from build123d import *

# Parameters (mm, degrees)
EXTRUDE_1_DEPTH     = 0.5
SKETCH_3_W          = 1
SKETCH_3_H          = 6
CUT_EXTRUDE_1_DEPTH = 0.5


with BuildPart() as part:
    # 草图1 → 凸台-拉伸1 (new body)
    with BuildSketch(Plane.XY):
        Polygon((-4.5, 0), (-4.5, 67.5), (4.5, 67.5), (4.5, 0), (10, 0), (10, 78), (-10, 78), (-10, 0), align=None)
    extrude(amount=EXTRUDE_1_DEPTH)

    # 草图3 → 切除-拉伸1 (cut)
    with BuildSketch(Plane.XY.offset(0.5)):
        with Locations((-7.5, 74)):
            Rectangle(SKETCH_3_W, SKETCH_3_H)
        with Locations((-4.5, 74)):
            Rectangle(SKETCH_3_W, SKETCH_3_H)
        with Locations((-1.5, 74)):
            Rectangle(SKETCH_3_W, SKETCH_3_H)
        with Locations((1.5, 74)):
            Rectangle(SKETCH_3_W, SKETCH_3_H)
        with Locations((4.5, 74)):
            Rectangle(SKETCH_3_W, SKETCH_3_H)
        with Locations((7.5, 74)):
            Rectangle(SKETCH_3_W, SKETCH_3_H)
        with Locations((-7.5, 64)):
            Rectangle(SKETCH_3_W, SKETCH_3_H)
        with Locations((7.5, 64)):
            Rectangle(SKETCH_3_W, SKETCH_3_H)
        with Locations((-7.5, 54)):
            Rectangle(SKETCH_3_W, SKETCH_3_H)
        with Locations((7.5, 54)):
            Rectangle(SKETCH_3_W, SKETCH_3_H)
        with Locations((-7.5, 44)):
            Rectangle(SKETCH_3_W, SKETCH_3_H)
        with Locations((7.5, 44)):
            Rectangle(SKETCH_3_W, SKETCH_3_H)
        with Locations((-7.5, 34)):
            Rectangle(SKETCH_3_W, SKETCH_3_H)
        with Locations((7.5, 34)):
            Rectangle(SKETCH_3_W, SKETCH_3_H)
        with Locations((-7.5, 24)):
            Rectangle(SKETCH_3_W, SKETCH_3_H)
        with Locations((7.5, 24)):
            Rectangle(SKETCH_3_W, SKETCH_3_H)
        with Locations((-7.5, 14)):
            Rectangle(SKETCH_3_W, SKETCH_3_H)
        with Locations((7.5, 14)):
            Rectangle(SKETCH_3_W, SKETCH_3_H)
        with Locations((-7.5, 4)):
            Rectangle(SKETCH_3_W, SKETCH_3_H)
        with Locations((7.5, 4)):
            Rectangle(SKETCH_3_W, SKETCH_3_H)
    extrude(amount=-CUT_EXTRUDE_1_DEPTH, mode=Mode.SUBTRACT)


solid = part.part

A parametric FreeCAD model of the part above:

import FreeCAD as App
import Part
import Sketcher
from FreeCAD import Vector
Q = App.Units.Quantity

doc = App.newDocument("Part")
body = doc.addObject("PartDesign::Body", "Body")

# Sketch on XY plane
sketch1 = body.newObject("Sketcher::SketchObject", "Sketch")
sketch1.AttachmentSupport = (doc.getObject("XY_Plane"), [""])
sketch1.MapMode = "FlatFace"
sketch1.addGeometry(Part.LineSegment(Vector(-4, 0, 0), Vector(-4, 68, 0)), False)
sketch1.addGeometry(Part.LineSegment(Vector(-4, 68, 0), Vector(4, 68, 0)), False)
sketch1.addGeometry(Part.LineSegment(Vector(4, 68, 0), Vector(4, 0, 0)), False)
sketch1.addGeometry(Part.LineSegment(Vector(4, 0, 0), Vector(10, 0, 0)), False)
sketch1.addGeometry(Part.LineSegment(Vector(10, 0, 0), Vector(10, 78, 0)), False)
sketch1.addGeometry(Part.LineSegment(Vector(10, 78, 0), Vector(-10, 78, 0)), False)
sketch1.addGeometry(Part.LineSegment(Vector(-10, 78, 0), Vector(-10, 0, 0)), False)
sketch1.addGeometry(Part.LineSegment(Vector(-10, 0, 0), Vector(-4, 0, 0)), False)
sketch1.addConstraint(Sketcher.Constraint("Coincident", 0, 2, 1, 1))
sketch1.addConstraint(Sketcher.Constraint("Coincident", 1, 2, 2, 1))
sketch1.addConstraint(Sketcher.Constraint("Coincident", 2, 2, 3, 1))
sketch1.addConstraint(Sketcher.Constraint("Coincident", 3, 2, 4, 1))
sketch1.addConstraint(Sketcher.Constraint("Coincident", 4, 2, 5, 1))
sketch1.addConstraint(Sketcher.Constraint("Coincident", 5, 2, 6, 1))
sketch1.addConstraint(Sketcher.Constraint("Coincident", 6, 2, 7, 1))
sketch1.addConstraint(Sketcher.Constraint("Coincident", 7, 2, 0, 1))
sketch1.addConstraint(Sketcher.Constraint("Vertical", 0))
sketch1.addConstraint(Sketcher.Constraint("Horizontal", 1))
sketch1.addConstraint(Sketcher.Constraint("Vertical", 2))
sketch1.addConstraint(Sketcher.Constraint("Horizontal", 3))
sketch1.addConstraint(Sketcher.Constraint("Vertical", 4))
sketch1.addConstraint(Sketcher.Constraint("Horizontal", 5))
sketch1.addConstraint(Sketcher.Constraint("Vertical", 6))
sketch1.addConstraint(Sketcher.Constraint("Horizontal", 7))
sketch1.addConstraint(Sketcher.Constraint("Symmetric", 3, 2, 6, 2, -1, 1))
sketch1.addConstraint(Sketcher.Constraint("Symmetric", 2, 2, 7, 2, -2))
sketch1.addConstraint(Sketcher.Constraint("DistanceX", 1, 1, 1, 2, Q("9 mm")))
sketch1.addConstraint(Sketcher.Constraint("DistanceX", 5, 2, 5, 1, Q("20 mm")))
sketch1.addConstraint(Sketcher.Constraint("DistanceY", 4, 1, 4, 2, Q("78 mm")))
sketch1.addConstraint(Sketcher.Constraint("DistanceY", 0, 1, 0, 2, Q("67.5 mm")))
pad1 = body.newObject("PartDesign::Pad", "Pad")
pad1.Profile = sketch1
pad1.Length = 0.5

# Sketch on XY plane
sketch2 = body.newObject("Sketcher::SketchObject", "Sketch001")
sketch2.AttachmentSupport = (doc.getObject("XY_Plane"), [""])
sketch2.MapMode = "FlatFace"
sketch2.AttachmentOffset = App.Placement(Vector(0, 0, 0.5), App.Rotation())
sketch2.addGeometry(Part.LineSegment(Vector(-8, 77, 0), Vector(-8, 71, 0)), False)
sketch2.addGeometry(Part.LineSegment(Vector(-8, 71, 0), Vector(-7, 71, 0)), False)
sketch2.addGeometry(Part.LineSegment(Vector(-7, 71, 0), Vector(-7, 77, 0)), False)
sketch2.addGeometry(Part.LineSegment(Vector(-7, 77, 0), Vector(-8, 77, 0)), False)
sketch2.addGeometry(Part.LineSegment(Vector(-5, 77, 0), Vector(-5, 71, 0)), False)
sketch2.addGeometry(Part.LineSegment(Vector(-5, 71, 0), Vector(-4, 71, 0)), False)
sketch2.addGeometry(Part.LineSegment(Vector(-4, 71, 0), Vector(-4, 77, 0)), False)
sketch2.addGeometry(Part.LineSegment(Vector(-4, 77, 0), Vector(-5, 77, 0)), False)
sketch2.addGeometry(Part.LineSegment(Vector(-2, 77, 0), Vector(-2, 71, 0)), False)
sketch2.addGeometry(Part.LineSegment(Vector(-2, 71, 0), Vector(-1, 71, 0)), False)
sketch2.addGeometry(Part.LineSegment(Vector(-1, 71, 0), Vector(-1, 77, 0)), False)
sketch2.addGeometry(Part.LineSegment(Vector(-1, 77, 0), Vector(-2, 77, 0)), False)
sketch2.addGeometry(Part.LineSegment(Vector(1, 77, 0), Vector(1, 71, 0)), False)
sketch2.addGeometry(Part.LineSegment(Vector(1, 71, 0), Vector(2, 71, 0)), False)
sketch2.addGeometry(Part.LineSegment(Vector(2, 71, 0), Vector(2, 77, 0)), False)
sketch2.addGeometry(Part.LineSegment(Vector(2, 77, 0), Vector(1, 77, 0)), False)
sketch2.addGeometry(Part.LineSegment(Vector(4, 77, 0), Vector(4, 71, 0)), False)
sketch2.addGeometry(Part.LineSegment(Vector(4, 71, 0), Vector(5, 71, 0)), False)
sketch2.addGeometry(Part.LineSegment(Vector(5, 71, 0), Vector(5, 77, 0)), False)
sketch2.addGeometry(Part.LineSegment(Vector(5, 77, 0), Vector(4, 77, 0)), False)
sketch2.addGeometry(Part.LineSegment(Vector(7, 77, 0), Vector(7, 71, 0)), False)
sketch2.addGeometry(Part.LineSegment(Vector(7, 71, 0), Vector(8, 71, 0)), False)
sketch2.addGeometry(Part.LineSegment(Vector(8, 71, 0), Vector(8, 77, 0)), False)
sketch2.addGeometry(Part.LineSegment(Vector(8, 77, 0), Vector(7, 77, 0)), False)
sketch2.addGeometry(Part.LineSegment(Vector(-8, 67, 0), Vector(-8, 61, 0)), False)
sketch2.addGeometry(Part.LineSegment(Vector(-8, 61, 0), Vector(-7, 61, 0)), False)
sketch2.addGeometry(Part.LineSegment(Vector(-7, 61, 0), Vector(-7, 67, 0)), False)
sketch2.addGeometry(Part.LineSegment(Vector(-7, 67, 0), Vector(-8, 67, 0)), False)
sketch2.addGeometry(Part.LineSegment(Vector(7, 67, 0), Vector(7, 61, 0)), False)
sketch2.addGeometry(Part.LineSegment(Vector(7, 61, 0), Vector(8, 61, 0)), False)
sketch2.addGeometry(Part.LineSegment(Vector(8, 61, 0), Vector(8, 67, 0)), False)
sketch2.addGeometry(Part.LineSegment(Vector(8, 67, 0), Vector(7, 67, 0)), False)
sketch2.addGeometry(Part.LineSegment(Vector(-8, 57, 0), Vector(-8, 51, 0)), False)
sketch2.addGeometry(Part.LineSegment(Vector(-8, 51, 0), Vector(-7, 51, 0)), False)
sketch2.addGeometry(Part.LineSegment(Vector(-7, 51, 0), Vector(-7, 57, 0)), False)
sketch2.addGeometry(Part.LineSegment(Vector(-7, 57, 0), Vector(-8, 57, 0)), False)
sketch2.addGeometry(Part.LineSegment(Vector(7, 57, 0), Vector(7, 51, 0)), False)
sketch2.addGeometry(Part.LineSegment(Vector(7, 51, 0), Vector(8, 51, 0)), False)
sketch2.addGeometry(Part.LineSegment(Vector(8, 51, 0), Vector(8, 57, 0)), False)
sketch2.addGeometry(Part.LineSegment(Vector(8, 57, 0), Vector(7, 57, 0)), False)
sketch2.addGeometry(Part.LineSegment(Vector(-8, 47, 0), Vector(-8, 41, 0)), False)
sketch2.addGeometry(Part.LineSegment(Vector(-8, 41, 0), Vector(-7, 41, 0)), False)
sketch2.addGeometry(Part.LineSegment(Vector(-7, 41, 0), Vector(-7, 47, 0)), False)
sketch2.addGeometry(Part.LineSegment(Vector(-7, 47, 0), Vector(-8, 47, 0)), False)
sketch2.addGeometry(Part.LineSegment(Vector(7, 47, 0), Vector(7, 41, 0)), False)
sketch2.addGeometry(Part.LineSegment(Vector(7, 41, 0), Vector(8, 41, 0)), False)
sketch2.addGeometry(Part.LineSegment(Vector(8, 41, 0), Vector(8, 47, 0)), False)
sketch2.addGeometry(Part.LineSegment(Vector(8, 47, 0), Vector(7, 47, 0)), False)
sketch2.addGeometry(Part.LineSegment(Vector(-8, 37, 0), Vector(-8, 31, 0)), False)
sketch2.addGeometry(Part.LineSegment(Vector(-8, 31, 0), Vector(-7, 31, 0)), False)
sketch2.addGeometry(Part.LineSegment(Vector(-7, 31, 0), Vector(-7, 37, 0)), False)
sketch2.addGeometry(Part.LineSegment(Vector(-7, 37, 0), Vector(-8, 37, 0)), False)
sketch2.addGeometry(Part.LineSegment(Vector(7, 37, 0), Vector(7, 31, 0)), False)
sketch2.addGeometry(Part.LineSegment(Vector(7, 31, 0), Vector(8, 31, 0)), False)
sketch2.addGeometry(Part.LineSegment(Vector(8, 31, 0), Vector(8, 37, 0)), False)
sketch2.addGeometry(Part.LineSegment(Vector(8, 37, 0), Vector(7, 37, 0)), False)
sketch2.addGeometry(Part.LineSegment(Vector(-8, 27, 0), Vector(-8, 21, 0)), False)
sketch2.addGeometry(Part.LineSegment(Vector(-8, 21, 0), Vector(-7, 21, 0)), False)
sketch2.addGeometry(Part.LineSegment(Vector(-7, 21, 0), Vector(-7, 27, 0)), False)
sketch2.addGeometry(Part.LineSegment(Vector(-7, 27, 0), Vector(-8, 27, 0)), False)
sketch2.addGeometry(Part.LineSegment(Vector(7, 27, 0), Vector(7, 21, 0)), False)
sketch2.addGeometry(Part.LineSegment(Vector(7, 21, 0), Vector(8, 21, 0)), False)
sketch2.addGeometry(Part.LineSegment(Vector(8, 21, 0), Vector(8, 27, 0)), False)
sketch2.addGeometry(Part.LineSegment(Vector(8, 27, 0), Vector(7, 27, 0)), False)
sketch2.addGeometry(Part.LineSegment(Vector(-8, 17, 0), Vector(-8, 11, 0)), False)
sketch2.addGeometry(Part.LineSegment(Vector(-8, 11, 0), Vector(-7, 11, 0)), False)
sketch2.addGeometry(Part.LineSegment(Vector(-7, 11, 0), Vector(-7, 17, 0)), False)
sketch2.addGeometry(Part.LineSegment(Vector(-7, 17, 0), Vector(-8, 17, 0)), False)
sketch2.addGeometry(Part.LineSegment(Vector(7, 17, 0), Vector(7, 11, 0)), False)
sketch2.addGeometry(Part.LineSegment(Vector(7, 11, 0), Vector(8, 11, 0)), False)
sketch2.addGeometry(Part.LineSegment(Vector(8, 11, 0), Vector(8, 17, 0)), False)
sketch2.addGeometry(Part.LineSegment(Vector(8, 17, 0), Vector(7, 17, 0)), False)
sketch2.addGeometry(Part.LineSegment(Vector(-8, 7, 0), Vector(-8, 1, 0)), False)
sketch2.addGeometry(Part.LineSegment(Vector(-8, 1, 0), Vector(-7, 1, 0)), False)
sketch2.addGeometry(Part.LineSegment(Vector(-7, 1, 0), Vector(-7, 7, 0)), False)
sketch2.addGeometry(Part.LineSegment(Vector(-7, 7, 0), Vector(-8, 7, 0)), False)
sketch2.addGeometry(Part.LineSegment(Vector(7, 7, 0), Vector(7, 1, 0)), False)
sketch2.addGeometry(Part.LineSegment(Vector(7, 1, 0), Vector(8, 1, 0)), False)
sketch2.addGeometry(Part.LineSegment(Vector(8, 1, 0), Vector(8, 7, 0)), False)
sketch2.addGeometry(Part.LineSegment(Vector(8, 7, 0), Vector(7, 7, 0)), False)
sketch2.addConstraint(Sketcher.Constraint("Coincident", 0, 2, 1, 1))
sketch2.addConstraint(Sketcher.Constraint("Coincident", 1, 2, 2, 1))
sketch2.addConstraint(Sketcher.Constraint("Coincident", 2, 2, 3, 1))
sketch2.addConstraint(Sketcher.Constraint("Coincident", 3, 2, 0, 1))
sketch2.addConstraint(Sketcher.Constraint("Coincident", 4, 2, 5, 1))
sketch2.addConstraint(Sketcher.Constraint("Coincident", 5, 2, 6, 1))
sketch2.addConstraint(Sketcher.Constraint("Coincident", 6, 2, 7, 1))
sketch2.addConstraint(Sketcher.Constraint("Coincident", 7, 2, 4, 1))
sketch2.addConstraint(Sketcher.Constraint("Coincident", 8, 2, 9, 1))
sketch2.addConstraint(Sketcher.Constraint("Coincident", 9, 2, 10, 1))
sketch2.addConstraint(Sketcher.Constraint("Coincident", 10, 2, 11, 1))
sketch2.addConstraint(Sketcher.Constraint("Coincident", 11, 2, 8, 1))
sketch2.addConstraint(Sketcher.Constraint("Coincident", 12, 2, 13, 1))
sketch2.addConstraint(Sketcher.Constraint("Coincident", 13, 2, 14, 1))
sketch2.addConstraint(Sketcher.Constraint("Coincident", 14, 2, 15, 1))
sketch2.addConstraint(Sketcher.Constraint("Coincident", 15, 2, 12, 1))
sketch2.addConstraint(Sketcher.Constraint("Coincident", 16, 2, 17, 1))
sketch2.addConstraint(Sketcher.Constraint("Coincident", 17, 2, 18, 1))
sketch2.addConstraint(Sketcher.Constraint("Coincident", 18, 2, 19, 1))
sketch2.addConstraint(Sketcher.Constraint("Coincident", 19, 2, 16, 1))
sketch2.addConstraint(Sketcher.Constraint("Coincident", 20, 2, 21, 1))
sketch2.addConstraint(Sketcher.Constraint("Coincident", 21, 2, 22, 1))
sketch2.addConstraint(Sketcher.Constraint("Coincident", 22, 2, 23, 1))
sketch2.addConstraint(Sketcher.Constraint("Coincident", 23, 2, 20, 1))
sketch2.addConstraint(Sketcher.Constraint("Coincident", 24, 2, 25, 1))
sketch2.addConstraint(Sketcher.Constraint("Coincident", 25, 2, 26, 1))
sketch2.addConstraint(Sketcher.Constraint("Coincident", 26, 2, 27, 1))
sketch2.addConstraint(Sketcher.Constraint("Coincident", 27, 2, 24, 1))
sketch2.addConstraint(Sketcher.Constraint("Coincident", 28, 2, 29, 1))
sketch2.addConstraint(Sketcher.Constraint("Coincident", 29, 2, 30, 1))
sketch2.addConstraint(Sketcher.Constraint("Coincident", 30, 2, 31, 1))
sketch2.addConstraint(Sketcher.Constraint("Coincident", 31, 2, 28, 1))
sketch2.addConstraint(Sketcher.Constraint("Coincident", 32, 2, 33, 1))
sketch2.addConstraint(Sketcher.Constraint("Coincident", 33, 2, 34, 1))
sketch2.addConstraint(Sketcher.Constraint("Coincident", 34, 2, 35, 1))
sketch2.addConstraint(Sketcher.Constraint("Coincident", 35, 2, 32, 1))
sketch2.addConstraint(Sketcher.Constraint("Coincident", 36, 2, 37, 1))
sketch2.addConstraint(Sketcher.Constraint("Coincident", 37, 2, 38, 1))
sketch2.addConstraint(Sketcher.Constraint("Coincident", 38, 2, 39, 1))
sketch2.addConstraint(Sketcher.Constraint("Coincident", 39, 2, 36, 1))
sketch2.addConstraint(Sketcher.Constraint("Coincident", 40, 2, 41, 1))
sketch2.addConstraint(Sketcher.Constraint("Coincident", 41, 2, 42, 1))
sketch2.addConstraint(Sketcher.Constraint("Coincident", 42, 2, 43, 1))
sketch2.addConstraint(Sketcher.Constraint("Coincident", 43, 2, 40, 1))
sketch2.addConstraint(Sketcher.Constraint("Coincident", 44, 2, 45, 1))
sketch2.addConstraint(Sketcher.Constraint("Coincident", 45, 2, 46, 1))
sketch2.addConstraint(Sketcher.Constraint("Coincident", 46, 2, 47, 1))
sketch2.addConstraint(Sketcher.Constraint("Coincident", 47, 2, 44, 1))
sketch2.addConstraint(Sketcher.Constraint("Coincident", 48, 2, 49, 1))
sketch2.addConstraint(Sketcher.Constraint("Coincident", 49, 2, 50, 1))
sketch2.addConstraint(Sketcher.Constraint("Coincident", 50, 2, 51, 1))
sketch2.addConstraint(Sketcher.Constraint("Coincident", 51, 2, 48, 1))
sketch2.addConstraint(Sketcher.Constraint("Coincident", 52, 2, 53, 1))
sketch2.addConstraint(Sketcher.Constraint("Coincident", 53, 2, 54, 1))
sketch2.addConstraint(Sketcher.Constraint("Coincident", 54, 2, 55, 1))
sketch2.addConstraint(Sketcher.Constraint("Coincident", 55, 2, 52, 1))
sketch2.addConstraint(Sketcher.Constraint("Coincident", 56, 2, 57, 1))
sketch2.addConstraint(Sketcher.Constraint("Coincident", 57, 2, 58, 1))
sketch2.addConstraint(Sketcher.Constraint("Coincident", 58, 2, 59, 1))
sketch2.addConstraint(Sketcher.Constraint("Coincident", 59, 2, 56, 1))
sketch2.addConstraint(Sketcher.Constraint("Coincident", 60, 2, 61, 1))
sketch2.addConstraint(Sketcher.Constraint("Coincident", 61, 2, 62, 1))
sketch2.addConstraint(Sketcher.Constraint("Coincident", 62, 2, 63, 1))
sketch2.addConstraint(Sketcher.Constraint("Coincident", 63, 2, 60, 1))
sketch2.addConstraint(Sketcher.Constraint("Coincident", 64, 2, 65, 1))
sketch2.addConstraint(Sketcher.Constraint("Coincident", 65, 2, 66, 1))
sketch2.addConstraint(Sketcher.Constraint("Coincident", 66, 2, 67, 1))
sketch2.addConstraint(Sketcher.Constraint("Coincident", 67, 2, 64, 1))
sketch2.addConstraint(Sketcher.Constraint("Coincident", 68, 2, 69, 1))
sketch2.addConstraint(Sketcher.Constraint("Coincident", 69, 2, 70, 1))
sketch2.addConstraint(Sketcher.Constraint("Coincident", 70, 2, 71, 1))
sketch2.addConstraint(Sketcher.Constraint("Coincident", 71, 2, 68, 1))
sketch2.addConstraint(Sketcher.Constraint("Coincident", 72, 2, 73, 1))
sketch2.addConstraint(Sketcher.Constraint("Coincident", 73, 2, 74, 1))
sketch2.addConstraint(Sketcher.Constraint("Coincident", 74, 2, 75, 1))
sketch2.addConstraint(Sketcher.Constraint("Coincident", 75, 2, 72, 1))
sketch2.addConstraint(Sketcher.Constraint("Coincident", 76, 2, 77, 1))
sketch2.addConstraint(Sketcher.Constraint("Coincident", 77, 2, 78, 1))
sketch2.addConstraint(Sketcher.Constraint("Coincident", 78, 2, 79, 1))
sketch2.addConstraint(Sketcher.Constraint("Coincident", 79, 2, 76, 1))
sketch2.addConstraint(Sketcher.Constraint("Vertical", 0))
sketch2.addConstraint(Sketcher.Constraint("Horizontal", 1))
sketch2.addConstraint(Sketcher.Constraint("Vertical", 2))
sketch2.addConstraint(Sketcher.Constraint("Horizontal", 3))
sketch2.addConstraint(Sketcher.Constraint("Vertical", 4))
sketch2.addConstraint(Sketcher.Constraint("Horizontal", 5))
sketch2.addConstraint(Sketcher.Constraint("Vertical", 6))
sketch2.addConstraint(Sketcher.Constraint("Horizontal", 7))
sketch2.addConstraint(Sketcher.Constraint("Vertical", 8))
sketch2.addConstraint(Sketcher.Constraint("Horizontal", 9))
sketch2.addConstraint(Sketcher.Constraint("Vertical", 10))
sketch2.addConstraint(Sketcher.Constraint("Horizontal", 11))
sketch2.addConstraint(Sketcher.Constraint("Vertical", 12))
sketch2.addConstraint(Sketcher.Constraint("Horizontal", 13))
sketch2.addConstraint(Sketcher.Constraint("Vertical", 14))
sketch2.addConstraint(Sketcher.Constraint("Horizontal", 15))
sketch2.addConstraint(Sketcher.Constraint("Vertical", 16))
sketch2.addConstraint(Sketcher.Constraint("Horizontal", 17))
sketch2.addConstraint(Sketcher.Constraint("Vertical", 18))
sketch2.addConstraint(Sketcher.Constraint("Horizontal", 19))
sketch2.addConstraint(Sketcher.Constraint("Vertical", 20))
sketch2.addConstraint(Sketcher.Constraint("Horizontal", 21))
sketch2.addConstraint(Sketcher.Constraint("Vertical", 22))
sketch2.addConstraint(Sketcher.Constraint("Horizontal", 23))
sketch2.addConstraint(Sketcher.Constraint("Vertical", 24))
sketch2.addConstraint(Sketcher.Constraint("Horizontal", 25))
sketch2.addConstraint(Sketcher.Constraint("Vertical", 26))
sketch2.addConstraint(Sketcher.Constraint("Horizontal", 27))
sketch2.addConstraint(Sketcher.Constraint("Vertical", 28))
sketch2.addConstraint(Sketcher.Constraint("Horizontal", 29))
sketch2.addConstraint(Sketcher.Constraint("Vertical", 30))
sketch2.addConstraint(Sketcher.Constraint("Horizontal", 31))
sketch2.addConstraint(Sketcher.Constraint("Vertical", 32))
sketch2.addConstraint(Sketcher.Constraint("Horizontal", 33))
sketch2.addConstraint(Sketcher.Constraint("Vertical", 34))
sketch2.addConstraint(Sketcher.Constraint("Horizontal", 35))
sketch2.addConstraint(Sketcher.Constraint("Vertical", 36))
sketch2.addConstraint(Sketcher.Constraint("Horizontal", 37))
sketch2.addConstraint(Sketcher.Constraint("Vertical", 38))
sketch2.addConstraint(Sketcher.Constraint("Horizontal", 39))
sketch2.addConstraint(Sketcher.Constraint("Vertical", 40))
sketch2.addConstraint(Sketcher.Constraint("Horizontal", 41))
sketch2.addConstraint(Sketcher.Constraint("Vertical", 42))
sketch2.addConstraint(Sketcher.Constraint("Horizontal", 43))
sketch2.addConstraint(Sketcher.Constraint("Vertical", 44))
sketch2.addConstraint(Sketcher.Constraint("Horizontal", 45))
sketch2.addConstraint(Sketcher.Constraint("Vertical", 46))
sketch2.addConstraint(Sketcher.Constraint("Horizontal", 47))
sketch2.addConstraint(Sketcher.Constraint("Vertical", 48))
sketch2.addConstraint(Sketcher.Constraint("Horizontal", 49))
sketch2.addConstraint(Sketcher.Constraint("Vertical", 50))
sketch2.addConstraint(Sketcher.Constraint("Horizontal", 51))
sketch2.addConstraint(Sketcher.Constraint("Vertical", 52))
sketch2.addConstraint(Sketcher.Constraint("Horizontal", 53))
sketch2.addConstraint(Sketcher.Constraint("Vertical", 54))
sketch2.addConstraint(Sketcher.Constraint("Horizontal", 55))
sketch2.addConstraint(Sketcher.Constraint("Vertical", 56))
sketch2.addConstraint(Sketcher.Constraint("Horizontal", 57))
sketch2.addConstraint(Sketcher.Constraint("Vertical", 58))
sketch2.addConstraint(Sketcher.Constraint("Horizontal", 59))
sketch2.addConstraint(Sketcher.Constraint("Vertical", 60))
sketch2.addConstraint(Sketcher.Constraint("Horizontal", 61))
sketch2.addConstraint(Sketcher.Constraint("Vertical", 62))
sketch2.addConstraint(Sketcher.Constraint("Horizontal", 63))
sketch2.addConstraint(Sketcher.Constraint("Vertical", 64))
sketch2.addConstraint(Sketcher.Constraint("Horizontal", 65))
sketch2.addConstraint(Sketcher.Constraint("Vertical", 66))
sketch2.addConstraint(Sketcher.Constraint("Horizontal", 67))
sketch2.addConstraint(Sketcher.Constraint("Vertical", 68))
sketch2.addConstraint(Sketcher.Constraint("Horizontal", 69))
sketch2.addConstraint(Sketcher.Constraint("Vertical", 70))
sketch2.addConstraint(Sketcher.Constraint("Horizontal", 71))
sketch2.addConstraint(Sketcher.Constraint("Vertical", 72))
sketch2.addConstraint(Sketcher.Constraint("Horizontal", 73))
sketch2.addConstraint(Sketcher.Constraint("Vertical", 74))
sketch2.addConstraint(Sketcher.Constraint("Horizontal", 75))
sketch2.addConstraint(Sketcher.Constraint("Vertical", 76))
sketch2.addConstraint(Sketcher.Constraint("Horizontal", 77))
sketch2.addConstraint(Sketcher.Constraint("Vertical", 78))
sketch2.addConstraint(Sketcher.Constraint("Horizontal", 79))
sketch2.addConstraint(Sketcher.Constraint("Symmetric", 9, 2, 12, 2, -2))
sketch2.addConstraint(Sketcher.Constraint("Symmetric", 11, 2, 14, 2, -2))
sketch2.addConstraint(Sketcher.Constraint("Symmetric", 5, 2, 16, 2, -2))
sketch2.addConstraint(Sketcher.Constraint("Symmetric", 7, 2, 18, 2, -2))
sketch2.addConstraint(Sketcher.Constraint("Symmetric", 1, 2, 20, 2, -2))
sketch2.addConstraint(Sketcher.Constraint("Symmetric", 3, 2, 22, 2, -2))
sketch2.addConstraint(Sketcher.Constraint("Symmetric", 25, 2, 28, 2, -2))
sketch2.addConstraint(Sketcher.Constraint("Symmetric", 27, 2, 30, 2, -2))
sketch2.addConstraint(Sketcher.Constraint("Symmetric", 33, 2, 36, 2, -2))
sketch2.addConstraint(Sketcher.Constraint("Symmetric", 35, 2, 38, 2, -2))
sketch2.addConstraint(Sketcher.Constraint("Symmetric", 41, 2, 44, 2, -2))
sketch2.addConstraint(Sketcher.Constraint("Symmetric", 43, 2, 46, 2, -2))
sketch2.addConstraint(Sketcher.Constraint("Symmetric", 49, 2, 52, 2, -2))
sketch2.addConstraint(Sketcher.Constraint("Symmetric", 51, 2, 54, 2, -2))
sketch2.addConstraint(Sketcher.Constraint("Symmetric", 57, 2, 60, 2, -2))
sketch2.addConstraint(Sketcher.Constraint("Symmetric", 59, 2, 62, 2, -2))
sketch2.addConstraint(Sketcher.Constraint("Symmetric", 65, 2, 68, 2, -2))
sketch2.addConstraint(Sketcher.Constraint("Symmetric", 67, 2, 70, 2, -2))
sketch2.addConstraint(Sketcher.Constraint("Symmetric", 73, 2, 76, 2, -2))
sketch2.addConstraint(Sketcher.Constraint("Symmetric", 75, 2, 78, 2, -2))
sketch2.addConstraint(Sketcher.Constraint("Horizontal", 1, 2, 4, 2))
sketch2.addConstraint(Sketcher.Constraint("Horizontal", 3, 2, 6, 2))
sketch2.addConstraint(Sketcher.Constraint("Horizontal", 5, 2, 8, 2))
sketch2.addConstraint(Sketcher.Constraint("Horizontal", 7, 2, 10, 2))
sketch2.addConstraint(Sketcher.Constraint("Vertical", 3, 2, 24, 2))
sketch2.addConstraint(Sketcher.Constraint("Vertical", 2, 2, 25, 2))
sketch2.addConstraint(Sketcher.Constraint("Vertical", 27, 2, 32, 2))
sketch2.addConstraint(Sketcher.Constraint("Vertical", 26, 2, 33, 2))
sketch2.addConstraint(Sketcher.Constraint("Vertical", 35, 2, 40, 2))
sketch2.addConstraint(Sketcher.Constraint("Vertical", 34, 2, 41, 2))
sketch2.addConstraint(Sketcher.Constraint("Vertical", 43, 2, 48, 2))
sketch2.addConstraint(Sketcher.Constraint("Vertical", 42, 2, 49, 2))
sketch2.addConstraint(Sketcher.Constraint("Vertical", 51, 2, 56, 2))
sketch2.addConstraint(Sketcher.Constraint("Vertical", 50, 2, 57, 2))
sketch2.addConstraint(Sketcher.Constraint("Vertical", 59, 2, 64, 2))
sketch2.addConstraint(Sketcher.Constraint("Vertical", 58, 2, 65, 2))
sketch2.addConstraint(Sketcher.Constraint("Vertical", 67, 2, 72, 2))
sketch2.addConstraint(Sketcher.Constraint("Vertical", 66, 2, 73, 2))
sketch2.addConstraint(Sketcher.Constraint("Equal", 3, 5))
sketch2.addConstraint(Sketcher.Constraint("Equal", 7, 9))
sketch2.addConstraint(Sketcher.Constraint("Equal", 22, 24))
sketch2.addConstraint(Sketcher.Constraint("Equal", 30, 32))
sketch2.addConstraint(Sketcher.Constraint("Equal", 38, 40))
sketch2.addConstraint(Sketcher.Constraint("Equal", 46, 48))
sketch2.addConstraint(Sketcher.Constraint("Equal", 54, 56))
sketch2.addConstraint(Sketcher.Constraint("Equal", 62, 64))
sketch2.addConstraint(Sketcher.Constraint("Equal", 70, 72))
sketch2.addConstraint(Sketcher.Constraint("DistanceX", 1, 1, 1, 2, Q("1 mm")))
sketch2.addConstraint(Sketcher.Constraint("DistanceY", 0, 2, 0, 1, Q("6 mm")))
sketch2.addConstraint(Sketcher.Constraint("DistanceX", 0, 2, -1, 1, Q("8 mm")))
sketch2.addConstraint(Sketcher.Constraint("DistanceY", -1, 1, 0, 2, Q("71 mm")))
sketch2.addConstraint(Sketcher.Constraint("DistanceX", 4, 2, -1, 1, Q("5 mm")))
sketch2.addConstraint(Sketcher.Constraint("DistanceX", 8, 2, -1, 1, Q("2 mm")))
sketch2.addConstraint(Sketcher.Constraint("DistanceY", -1, 1, 24, 2, Q("61 mm")))
sketch2.addConstraint(Sketcher.Constraint("DistanceY", -1, 1, 32, 2, Q("51 mm")))
sketch2.addConstraint(Sketcher.Constraint("DistanceY", -1, 1, 40, 2, Q("41 mm")))
sketch2.addConstraint(Sketcher.Constraint("DistanceY", -1, 1, 48, 2, Q("31 mm")))
sketch2.addConstraint(Sketcher.Constraint("DistanceY", -1, 1, 56, 2, Q("21 mm")))
sketch2.addConstraint(Sketcher.Constraint("DistanceY", -1, 1, 64, 2, Q("11 mm")))
sketch2.addConstraint(Sketcher.Constraint("DistanceY", -1, 1, 72, 2, Q("1 mm")))
pocket1 = body.newObject("PartDesign::Pocket", "Pocket")
pocket1.Profile = sketch2
pocket1.Length = 0.5

doc.recompute()
